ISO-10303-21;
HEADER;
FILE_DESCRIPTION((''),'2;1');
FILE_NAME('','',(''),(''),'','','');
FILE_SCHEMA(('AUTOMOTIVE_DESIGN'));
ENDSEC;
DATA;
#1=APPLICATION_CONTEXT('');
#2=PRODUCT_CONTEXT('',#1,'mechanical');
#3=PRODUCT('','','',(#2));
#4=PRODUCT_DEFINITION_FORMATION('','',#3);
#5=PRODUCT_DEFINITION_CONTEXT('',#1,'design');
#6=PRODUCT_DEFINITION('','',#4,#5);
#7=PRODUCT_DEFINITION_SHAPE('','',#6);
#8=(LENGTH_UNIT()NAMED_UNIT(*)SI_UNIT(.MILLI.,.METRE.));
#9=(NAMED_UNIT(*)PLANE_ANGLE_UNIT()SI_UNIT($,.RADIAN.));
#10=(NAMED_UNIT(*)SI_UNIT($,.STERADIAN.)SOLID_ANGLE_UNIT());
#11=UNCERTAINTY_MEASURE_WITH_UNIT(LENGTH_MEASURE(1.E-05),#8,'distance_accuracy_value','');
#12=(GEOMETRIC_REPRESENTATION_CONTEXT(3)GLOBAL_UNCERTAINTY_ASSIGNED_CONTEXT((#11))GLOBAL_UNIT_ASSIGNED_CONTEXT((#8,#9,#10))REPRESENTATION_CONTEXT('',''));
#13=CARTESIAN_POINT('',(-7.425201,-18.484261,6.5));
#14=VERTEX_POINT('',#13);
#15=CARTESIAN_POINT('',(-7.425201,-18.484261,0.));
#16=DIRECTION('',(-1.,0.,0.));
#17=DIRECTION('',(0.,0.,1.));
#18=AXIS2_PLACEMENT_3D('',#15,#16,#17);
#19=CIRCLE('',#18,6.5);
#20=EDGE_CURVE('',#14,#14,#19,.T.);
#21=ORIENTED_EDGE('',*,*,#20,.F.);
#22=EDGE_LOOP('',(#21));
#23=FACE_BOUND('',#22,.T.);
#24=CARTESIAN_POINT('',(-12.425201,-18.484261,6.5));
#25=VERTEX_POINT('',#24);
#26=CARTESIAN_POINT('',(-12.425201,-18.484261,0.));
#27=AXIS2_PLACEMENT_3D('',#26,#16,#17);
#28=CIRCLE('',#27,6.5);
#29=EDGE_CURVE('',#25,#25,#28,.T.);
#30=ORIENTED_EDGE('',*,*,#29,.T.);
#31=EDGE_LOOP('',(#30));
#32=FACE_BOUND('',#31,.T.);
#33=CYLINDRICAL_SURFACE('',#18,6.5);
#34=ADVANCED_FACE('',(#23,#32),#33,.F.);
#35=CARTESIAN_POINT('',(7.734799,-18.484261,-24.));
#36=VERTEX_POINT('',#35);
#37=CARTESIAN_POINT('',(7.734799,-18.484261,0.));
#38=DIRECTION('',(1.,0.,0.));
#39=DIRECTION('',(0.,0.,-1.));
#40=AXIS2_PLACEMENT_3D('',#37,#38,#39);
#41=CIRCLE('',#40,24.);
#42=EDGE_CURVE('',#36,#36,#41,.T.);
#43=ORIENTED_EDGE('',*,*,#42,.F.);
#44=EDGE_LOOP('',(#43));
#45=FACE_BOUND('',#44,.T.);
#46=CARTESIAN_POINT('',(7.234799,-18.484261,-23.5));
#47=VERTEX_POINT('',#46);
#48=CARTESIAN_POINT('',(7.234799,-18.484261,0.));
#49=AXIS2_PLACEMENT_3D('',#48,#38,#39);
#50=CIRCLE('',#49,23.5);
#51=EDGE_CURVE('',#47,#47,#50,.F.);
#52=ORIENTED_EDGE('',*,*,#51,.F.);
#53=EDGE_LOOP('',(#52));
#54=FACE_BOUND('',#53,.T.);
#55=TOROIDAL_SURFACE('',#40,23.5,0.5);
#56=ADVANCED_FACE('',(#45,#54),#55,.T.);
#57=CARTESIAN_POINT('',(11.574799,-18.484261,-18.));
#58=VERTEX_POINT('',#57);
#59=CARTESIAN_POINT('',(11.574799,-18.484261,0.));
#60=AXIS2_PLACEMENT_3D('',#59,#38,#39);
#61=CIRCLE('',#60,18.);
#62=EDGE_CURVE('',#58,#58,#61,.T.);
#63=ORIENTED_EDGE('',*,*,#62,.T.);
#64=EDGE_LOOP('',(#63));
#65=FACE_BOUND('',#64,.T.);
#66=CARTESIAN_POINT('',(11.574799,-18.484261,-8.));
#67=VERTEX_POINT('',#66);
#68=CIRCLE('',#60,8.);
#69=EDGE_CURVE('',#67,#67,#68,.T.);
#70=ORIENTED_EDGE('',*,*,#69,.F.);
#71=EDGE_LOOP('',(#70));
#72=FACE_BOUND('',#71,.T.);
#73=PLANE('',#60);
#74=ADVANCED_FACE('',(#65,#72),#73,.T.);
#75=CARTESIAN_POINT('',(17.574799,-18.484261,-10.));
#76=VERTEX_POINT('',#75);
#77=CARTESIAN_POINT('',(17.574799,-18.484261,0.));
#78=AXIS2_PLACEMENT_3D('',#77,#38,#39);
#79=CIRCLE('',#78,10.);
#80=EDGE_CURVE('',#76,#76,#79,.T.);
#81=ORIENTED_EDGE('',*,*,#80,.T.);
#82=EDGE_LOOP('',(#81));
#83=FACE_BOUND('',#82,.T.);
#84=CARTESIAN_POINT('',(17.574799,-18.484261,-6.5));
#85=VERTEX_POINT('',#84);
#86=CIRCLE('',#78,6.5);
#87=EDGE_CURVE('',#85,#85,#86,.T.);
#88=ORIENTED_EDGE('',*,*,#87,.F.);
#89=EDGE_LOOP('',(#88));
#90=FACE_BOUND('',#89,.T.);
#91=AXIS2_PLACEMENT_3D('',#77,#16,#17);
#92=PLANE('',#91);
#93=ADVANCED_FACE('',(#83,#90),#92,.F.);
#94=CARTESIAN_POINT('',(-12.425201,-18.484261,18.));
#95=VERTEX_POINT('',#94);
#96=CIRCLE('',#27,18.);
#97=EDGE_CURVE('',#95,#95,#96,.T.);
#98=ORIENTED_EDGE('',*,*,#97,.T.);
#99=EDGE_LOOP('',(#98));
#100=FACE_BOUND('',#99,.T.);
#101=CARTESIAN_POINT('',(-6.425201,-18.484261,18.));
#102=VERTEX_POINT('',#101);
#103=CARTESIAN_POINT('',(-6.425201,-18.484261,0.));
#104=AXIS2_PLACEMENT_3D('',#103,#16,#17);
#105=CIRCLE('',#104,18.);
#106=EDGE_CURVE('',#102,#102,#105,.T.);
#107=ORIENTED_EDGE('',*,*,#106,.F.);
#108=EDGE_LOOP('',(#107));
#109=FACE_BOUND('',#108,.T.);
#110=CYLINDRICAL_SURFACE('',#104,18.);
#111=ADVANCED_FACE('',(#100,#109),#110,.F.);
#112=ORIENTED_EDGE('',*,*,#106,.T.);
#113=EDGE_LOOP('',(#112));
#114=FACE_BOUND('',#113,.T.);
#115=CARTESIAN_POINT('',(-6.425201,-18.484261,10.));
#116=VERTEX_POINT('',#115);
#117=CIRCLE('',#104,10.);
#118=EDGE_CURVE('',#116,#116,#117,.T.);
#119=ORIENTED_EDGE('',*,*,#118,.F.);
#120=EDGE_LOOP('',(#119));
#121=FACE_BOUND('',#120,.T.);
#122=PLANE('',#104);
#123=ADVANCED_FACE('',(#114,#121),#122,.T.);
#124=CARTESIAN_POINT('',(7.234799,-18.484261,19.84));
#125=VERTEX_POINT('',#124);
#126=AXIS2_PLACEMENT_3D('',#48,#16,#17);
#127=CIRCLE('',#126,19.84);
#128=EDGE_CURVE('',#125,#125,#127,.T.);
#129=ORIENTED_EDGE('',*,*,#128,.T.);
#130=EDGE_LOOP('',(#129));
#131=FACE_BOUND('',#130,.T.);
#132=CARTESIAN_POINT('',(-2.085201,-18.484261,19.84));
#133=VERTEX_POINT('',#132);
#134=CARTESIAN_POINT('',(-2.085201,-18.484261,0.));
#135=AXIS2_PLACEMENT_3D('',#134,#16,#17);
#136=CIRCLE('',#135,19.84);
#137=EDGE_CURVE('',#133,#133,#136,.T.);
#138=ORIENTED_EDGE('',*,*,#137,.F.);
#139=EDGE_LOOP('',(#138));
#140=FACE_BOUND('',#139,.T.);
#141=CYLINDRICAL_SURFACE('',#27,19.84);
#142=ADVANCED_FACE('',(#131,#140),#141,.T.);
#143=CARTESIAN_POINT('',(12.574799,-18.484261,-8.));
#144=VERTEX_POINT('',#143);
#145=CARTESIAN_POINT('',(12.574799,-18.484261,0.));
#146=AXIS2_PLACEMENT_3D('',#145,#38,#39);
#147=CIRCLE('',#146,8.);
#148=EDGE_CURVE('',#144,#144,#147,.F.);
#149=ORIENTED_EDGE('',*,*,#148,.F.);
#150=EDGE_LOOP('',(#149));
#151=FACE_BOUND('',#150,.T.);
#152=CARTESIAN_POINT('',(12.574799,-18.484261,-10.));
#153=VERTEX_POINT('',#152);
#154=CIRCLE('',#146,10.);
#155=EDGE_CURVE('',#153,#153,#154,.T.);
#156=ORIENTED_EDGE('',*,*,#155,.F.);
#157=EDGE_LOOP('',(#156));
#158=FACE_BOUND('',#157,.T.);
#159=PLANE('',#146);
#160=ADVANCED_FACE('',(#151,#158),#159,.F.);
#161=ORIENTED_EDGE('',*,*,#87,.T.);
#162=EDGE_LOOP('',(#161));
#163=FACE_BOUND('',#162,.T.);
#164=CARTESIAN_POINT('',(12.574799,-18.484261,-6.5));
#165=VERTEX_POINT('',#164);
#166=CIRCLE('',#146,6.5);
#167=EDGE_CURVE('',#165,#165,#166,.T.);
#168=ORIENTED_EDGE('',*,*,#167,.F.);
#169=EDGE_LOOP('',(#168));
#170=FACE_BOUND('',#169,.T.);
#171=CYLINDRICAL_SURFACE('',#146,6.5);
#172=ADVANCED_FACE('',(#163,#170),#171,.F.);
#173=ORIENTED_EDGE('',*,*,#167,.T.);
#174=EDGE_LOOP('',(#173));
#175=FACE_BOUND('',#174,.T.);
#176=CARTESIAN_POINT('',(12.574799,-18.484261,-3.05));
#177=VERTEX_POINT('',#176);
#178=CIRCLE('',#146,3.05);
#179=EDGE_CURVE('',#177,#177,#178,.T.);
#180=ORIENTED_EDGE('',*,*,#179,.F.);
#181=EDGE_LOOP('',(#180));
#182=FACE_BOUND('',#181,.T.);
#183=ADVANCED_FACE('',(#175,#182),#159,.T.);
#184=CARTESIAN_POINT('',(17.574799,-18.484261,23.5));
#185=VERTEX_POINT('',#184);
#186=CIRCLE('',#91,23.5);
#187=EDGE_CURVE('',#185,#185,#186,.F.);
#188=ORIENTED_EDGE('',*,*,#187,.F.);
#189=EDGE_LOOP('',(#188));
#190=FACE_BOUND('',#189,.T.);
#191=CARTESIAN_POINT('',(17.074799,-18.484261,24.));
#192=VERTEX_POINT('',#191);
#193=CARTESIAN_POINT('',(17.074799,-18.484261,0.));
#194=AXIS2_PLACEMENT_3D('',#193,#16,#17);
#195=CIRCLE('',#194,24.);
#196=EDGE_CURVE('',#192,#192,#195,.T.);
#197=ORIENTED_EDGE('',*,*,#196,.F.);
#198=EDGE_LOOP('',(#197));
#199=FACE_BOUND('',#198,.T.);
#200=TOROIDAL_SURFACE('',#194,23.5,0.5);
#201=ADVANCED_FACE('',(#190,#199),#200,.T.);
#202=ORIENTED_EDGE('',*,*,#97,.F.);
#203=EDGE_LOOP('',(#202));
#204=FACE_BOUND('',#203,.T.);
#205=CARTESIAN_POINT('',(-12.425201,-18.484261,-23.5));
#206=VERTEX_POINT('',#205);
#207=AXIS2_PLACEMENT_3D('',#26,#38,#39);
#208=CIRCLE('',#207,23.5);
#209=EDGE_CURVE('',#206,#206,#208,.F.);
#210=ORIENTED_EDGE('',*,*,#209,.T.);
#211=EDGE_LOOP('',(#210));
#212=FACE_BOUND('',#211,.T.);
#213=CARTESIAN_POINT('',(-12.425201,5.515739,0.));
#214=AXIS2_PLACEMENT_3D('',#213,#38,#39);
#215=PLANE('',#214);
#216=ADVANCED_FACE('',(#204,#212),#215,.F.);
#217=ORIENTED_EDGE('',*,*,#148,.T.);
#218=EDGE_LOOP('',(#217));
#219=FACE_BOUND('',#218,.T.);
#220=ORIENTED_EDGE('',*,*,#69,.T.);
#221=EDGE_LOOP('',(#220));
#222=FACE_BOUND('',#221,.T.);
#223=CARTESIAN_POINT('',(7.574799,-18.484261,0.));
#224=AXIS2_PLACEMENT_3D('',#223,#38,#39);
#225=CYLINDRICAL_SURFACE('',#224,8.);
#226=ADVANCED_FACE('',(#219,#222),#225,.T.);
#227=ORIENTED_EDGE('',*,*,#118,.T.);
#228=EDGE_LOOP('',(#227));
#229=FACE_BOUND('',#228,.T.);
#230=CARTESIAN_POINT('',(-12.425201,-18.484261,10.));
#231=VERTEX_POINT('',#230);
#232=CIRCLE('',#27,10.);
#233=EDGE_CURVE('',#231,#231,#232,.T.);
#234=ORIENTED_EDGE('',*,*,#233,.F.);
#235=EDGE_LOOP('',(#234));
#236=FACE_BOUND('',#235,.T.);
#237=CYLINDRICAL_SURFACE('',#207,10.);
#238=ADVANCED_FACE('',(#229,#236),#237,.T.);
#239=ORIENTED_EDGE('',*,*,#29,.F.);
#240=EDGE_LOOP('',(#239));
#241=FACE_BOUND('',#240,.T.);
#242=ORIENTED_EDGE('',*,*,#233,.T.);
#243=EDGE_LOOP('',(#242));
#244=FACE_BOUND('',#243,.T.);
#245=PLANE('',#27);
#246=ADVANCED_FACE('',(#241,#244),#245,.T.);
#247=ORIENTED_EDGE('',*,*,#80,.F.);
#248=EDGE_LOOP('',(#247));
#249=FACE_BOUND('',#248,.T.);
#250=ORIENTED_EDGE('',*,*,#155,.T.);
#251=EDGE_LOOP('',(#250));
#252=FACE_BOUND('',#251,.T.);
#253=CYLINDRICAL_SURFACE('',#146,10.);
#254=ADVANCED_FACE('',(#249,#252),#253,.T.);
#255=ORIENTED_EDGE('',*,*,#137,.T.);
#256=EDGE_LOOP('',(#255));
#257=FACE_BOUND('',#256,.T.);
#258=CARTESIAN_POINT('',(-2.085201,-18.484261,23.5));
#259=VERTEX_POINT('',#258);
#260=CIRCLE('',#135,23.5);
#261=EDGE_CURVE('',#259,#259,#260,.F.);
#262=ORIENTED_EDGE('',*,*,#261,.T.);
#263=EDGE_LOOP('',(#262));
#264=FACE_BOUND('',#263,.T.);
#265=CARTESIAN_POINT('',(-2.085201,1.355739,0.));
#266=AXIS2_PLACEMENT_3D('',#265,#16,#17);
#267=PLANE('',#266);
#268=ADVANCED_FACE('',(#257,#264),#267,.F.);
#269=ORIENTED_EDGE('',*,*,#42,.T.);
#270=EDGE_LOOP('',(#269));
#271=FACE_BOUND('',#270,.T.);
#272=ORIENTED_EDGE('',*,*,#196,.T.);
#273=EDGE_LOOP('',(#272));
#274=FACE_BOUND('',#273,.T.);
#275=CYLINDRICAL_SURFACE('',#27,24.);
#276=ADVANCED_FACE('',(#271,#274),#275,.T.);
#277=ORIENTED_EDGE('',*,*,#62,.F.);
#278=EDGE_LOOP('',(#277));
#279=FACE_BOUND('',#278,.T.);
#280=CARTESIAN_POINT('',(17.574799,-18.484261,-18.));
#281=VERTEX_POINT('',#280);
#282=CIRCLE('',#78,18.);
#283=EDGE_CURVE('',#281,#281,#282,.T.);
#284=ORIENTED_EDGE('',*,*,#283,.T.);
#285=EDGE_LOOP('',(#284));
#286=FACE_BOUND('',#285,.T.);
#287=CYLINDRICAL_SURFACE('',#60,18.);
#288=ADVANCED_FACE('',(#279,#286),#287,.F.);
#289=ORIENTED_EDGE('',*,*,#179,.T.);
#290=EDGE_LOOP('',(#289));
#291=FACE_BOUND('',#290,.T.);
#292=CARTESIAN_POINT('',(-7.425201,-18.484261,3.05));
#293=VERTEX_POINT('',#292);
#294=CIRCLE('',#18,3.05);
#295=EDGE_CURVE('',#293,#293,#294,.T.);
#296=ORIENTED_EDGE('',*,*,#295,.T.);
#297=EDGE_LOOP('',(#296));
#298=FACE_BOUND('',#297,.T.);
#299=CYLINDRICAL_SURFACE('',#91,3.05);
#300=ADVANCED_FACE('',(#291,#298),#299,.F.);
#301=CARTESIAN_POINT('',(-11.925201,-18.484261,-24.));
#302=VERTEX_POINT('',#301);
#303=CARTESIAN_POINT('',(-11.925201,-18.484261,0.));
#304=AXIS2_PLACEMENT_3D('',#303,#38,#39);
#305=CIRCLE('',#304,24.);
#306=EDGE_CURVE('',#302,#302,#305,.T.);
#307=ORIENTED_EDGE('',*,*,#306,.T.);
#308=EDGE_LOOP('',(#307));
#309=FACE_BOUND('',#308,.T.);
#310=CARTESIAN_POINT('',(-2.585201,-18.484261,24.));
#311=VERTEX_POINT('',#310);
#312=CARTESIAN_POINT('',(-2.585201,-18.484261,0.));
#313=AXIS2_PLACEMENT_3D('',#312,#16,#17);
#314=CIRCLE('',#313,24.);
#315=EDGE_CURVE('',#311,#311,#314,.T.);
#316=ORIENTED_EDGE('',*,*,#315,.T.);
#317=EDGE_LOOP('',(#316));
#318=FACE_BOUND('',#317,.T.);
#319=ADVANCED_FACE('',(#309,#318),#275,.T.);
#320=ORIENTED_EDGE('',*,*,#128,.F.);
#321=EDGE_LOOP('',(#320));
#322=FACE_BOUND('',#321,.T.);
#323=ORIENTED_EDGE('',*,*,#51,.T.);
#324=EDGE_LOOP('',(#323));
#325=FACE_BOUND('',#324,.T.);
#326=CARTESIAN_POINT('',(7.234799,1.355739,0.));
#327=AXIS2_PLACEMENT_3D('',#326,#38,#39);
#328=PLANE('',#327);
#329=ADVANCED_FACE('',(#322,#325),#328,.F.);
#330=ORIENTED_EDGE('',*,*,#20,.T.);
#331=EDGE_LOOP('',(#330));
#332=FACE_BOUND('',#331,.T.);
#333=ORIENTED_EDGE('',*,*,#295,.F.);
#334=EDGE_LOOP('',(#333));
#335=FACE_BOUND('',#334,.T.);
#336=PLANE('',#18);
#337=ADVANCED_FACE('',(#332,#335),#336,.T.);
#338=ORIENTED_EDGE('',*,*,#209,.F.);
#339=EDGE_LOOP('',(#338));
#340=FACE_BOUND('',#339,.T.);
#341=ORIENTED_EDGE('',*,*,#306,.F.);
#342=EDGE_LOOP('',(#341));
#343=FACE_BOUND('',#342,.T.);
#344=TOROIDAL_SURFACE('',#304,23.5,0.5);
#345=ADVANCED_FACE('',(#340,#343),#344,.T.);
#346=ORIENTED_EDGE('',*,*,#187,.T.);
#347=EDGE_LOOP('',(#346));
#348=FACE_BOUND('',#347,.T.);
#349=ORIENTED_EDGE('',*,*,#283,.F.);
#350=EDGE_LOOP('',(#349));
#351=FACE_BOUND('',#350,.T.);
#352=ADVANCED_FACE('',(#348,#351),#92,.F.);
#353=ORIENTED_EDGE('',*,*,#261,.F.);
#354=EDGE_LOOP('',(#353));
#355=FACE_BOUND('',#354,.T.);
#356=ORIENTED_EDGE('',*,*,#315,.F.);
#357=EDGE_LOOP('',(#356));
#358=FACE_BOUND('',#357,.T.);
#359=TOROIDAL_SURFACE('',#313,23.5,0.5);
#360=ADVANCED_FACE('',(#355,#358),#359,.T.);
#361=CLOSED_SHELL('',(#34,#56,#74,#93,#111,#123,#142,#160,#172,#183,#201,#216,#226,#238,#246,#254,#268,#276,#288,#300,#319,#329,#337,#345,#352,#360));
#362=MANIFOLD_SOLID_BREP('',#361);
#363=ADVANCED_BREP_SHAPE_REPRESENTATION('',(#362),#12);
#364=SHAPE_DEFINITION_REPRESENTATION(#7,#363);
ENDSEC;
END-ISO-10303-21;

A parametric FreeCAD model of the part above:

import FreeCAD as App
import Part
import Sketcher


def edges_at(feature, points):
    """Names of the edges that pass closest to the given points."""
    edges = feature.Shape.Edges
    near = lambda p: min(range(len(edges)), key=lambda i: edges[i].distToShape(Part.Vertex(*p))[0])
    return sorted({f"Edge{near(p) + 1}" for p in points})


def add_polygon(sketch, points):
    """Adds a closed chain of lines whose ends are joined by coincident constraints."""
    first, n = sketch.GeometryCount, len(points)
    for a, b in zip(points, points[1:] + points[:1]):
        sketch.addGeometry(Part.LineSegment(App.Vector(*a, 0), App.Vector(*b, 0)), False)
    for i in range(n):
        sketch.addConstraint(Sketcher.Constraint("Coincident", first + i, 2, first + (i + 1) % n, 1))

doc = App.newDocument("Part")
body = doc.addObject("PartDesign::Body", "Body")

# Sketch on XY plane
sketch1 = body.newObject("Sketcher::SketchObject", "Sketch")
sketch1.AttachmentSupport = (doc.getObject("XY_Plane"), [""])
sketch1.MapMode = "FlatFace"
add_polygon(sketch1, [(7.2, 1.4), (-2.1, 1.4), (-2.1, 5.5), (-12.4, 5.5), (-12.4, -18.5), (17.6, -18.5), (17.6, 5.5), (7.2, 5.5)])  # lines 0-7
sketch1.addGeometry(Part.LineSegment(App.Vector(-12.4, -18.5, 0), App.Vector(17.6, -18.5, 0)), True)  # axis
sketch1.addConstraint([
    Sketcher.Constraint("Horizontal", 0),
    Sketcher.Constraint("Vertical", 1),
    Sketcher.Constraint("Horizontal", 2),
    Sketcher.Constraint("Vertical", 3),
    Sketcher.Constraint("Horizontal", 4),
    Sketcher.Constraint("Vertical", 5),
    Sketcher.Constraint("Horizontal", 6),
    Sketcher.Constraint("Vertical", 7),
    Sketcher.Constraint("Horizontal", 8),
    Sketcher.Constraint("Coincident", 8, 1, 3, 2),
    Sketcher.Constraint("Horizontal", 2, 2, 5, 2),
    Sketcher.Constraint("Vertical", 5, 2, 8, 2),
    Sketcher.Constraint("Equal", 2, 6),
    Sketcher.Constraint("DistanceX", 4, 1, 4, 2, 30.0),
    Sketcher.Constraint("DistanceY", 3, 2, 3, 1, 24.0),
    Sketcher.Constraint("DistanceX", 0, 2, 0, 1, 9.32),
    Sketcher.Constraint("DistanceY", 1, 1, 1, 2, 4.16),
    Sketcher.Constraint("DistanceX", 0, 2, -1, 1, 2.085201),
    Sketcher.Constraint("DistanceY", -1, 1, 0, 2, 1.355739),
])
revolution = body.newObject("PartDesign::Revolution", "Revolution")
revolution.Profile = sketch1
revolution.ReferenceAxis = (sketch1, ["Axis0"])
revolution.Angle = 360

# Sketch on YZ plane
sketch2 = body.newObject("Sketcher::SketchObject", "Sketch001")
sketch2.AttachmentSupport = (doc.getObject("YZ_Plane"), [""])
sketch2.MapMode = "FlatFace"
sketch2.AttachmentOffset = App.Placement(App.Vector(0, 0, 17.574799), App.Rotation())
sketch2.addGeometry(Part.Circle(App.Vector(-18.5, 0, 0), App.Vector(0, 0, 1), 2), False)
sketch2.addConstraint([
    Sketcher.Constraint("PointOnObject", 0, 3, -1),
    Sketcher.Constraint("Diameter", 0, 4.0),
    Sketcher.Constraint("DistanceX", 0, 3, -1, 1, 18.484261),
])
pocket1 = body.newObject("PartDesign::Pocket", "Pocket")
pocket1.Profile = sketch2
pocket1.Type = "ThroughAll"
doc.recompute()

fillet = body.newObject("PartDesign::Fillet", "Fillet")
fillet.Base = (pocket1, edges_at(pocket1, [
    (-2.085, -18.484, -24),
    (7.235, -18.484, -24),
    (17.575, -18.484, -24),
    (-12.425, -18.484, -24),
]))
fillet.Radius = 0.5

# Sketch on YZ plane
sketch3 = body.newObject("Sketcher::SketchObject", "Sketch002")
sketch3.AttachmentSupport = (doc.getObject("YZ_Plane"), [""])
sketch3.MapMode = "FlatFace"
sketch3.AttachmentOffset = App.Placement(App.Vector(0, 0, 17.574799), App.Rotation())
sketch3.addGeometry([
    Part.Circle(App.Vector(-18, 0, 0), App.Vector(0, 0, 1), 18),
    Part.Circle(App.Vector(-18, 0, 0), App.Vector(0, 0, 1), 6),
], False)
sketch3.addConstraint([
    Sketcher.Constraint("Coincident", 1, 3, 0, 3),
    Sketcher.Constraint("PointOnObject", 0, 3, -1),
    Sketcher.Constraint("Diameter", 0, 36.0),
    Sketcher.Constraint("Diameter", 1, 12.0),
    Sketcher.Constraint("DistanceX", 0, 3, -1, 1, 18.484261),
])
pocket2 = body.newObject("PartDesign::Pocket", "Pocket001")
pocket2.Profile = sketch3
pocket2.Length = 6

# Sketch on YZ plane
sketch4 = body.newObject("Sketcher::SketchObject", "Sketch003")
sketch4.AttachmentSupport = (doc.getObject("YZ_Plane"), [""])
sketch4.MapMode = "FlatFace"
sketch4.AttachmentOffset = App.Placement(App.Vector(0, 0, -6.425201), App.Rotation())
sketch4.addGeometry(Part.Circle(App.Vector(-18, 0, 0), App.Vector(0, 0, 1), 18), False)
sketch4.addConstraint([
    Sketcher.Constraint("PointOnObject", 0, 3, -1),
    Sketcher.Constraint("Diameter", 0, 36.0),
    Sketcher.Constraint("DistanceX", 0, 3, -1, 1, 18.484261),
])
pocket3 = body.newObject("PartDesign::Pocket", "Pocket002")
pocket3.Profile = sketch4
pocket3.Length = 6

# Sketch on YZ plane
sketch5 = body.newObject("Sketcher::SketchObject", "Sketch004")
sketch5.AttachmentSupport = (doc.getObject("YZ_Plane"), [""])
sketch5.MapMode = "FlatFace"
sketch5.AttachmentOffset = App.Placement(App.Vector(0, 0, -6.425201), App.Rotation())
sketch5.addGeometry(Part.Circle(App.Vector(-18, 0, 0), App.Vector(0, 0, 1), 10), False)
sketch5.addConstraint([
    Sketcher.Constraint("PointOnObject", 0, 3, -1),
    Sketcher.Constraint("Diameter", 0, 20.0),
    Sketcher.Constraint("DistanceX", 0, 3, -1, 1, 18.484261),
])
pad1 = body.newObject("PartDesign::Pad", "Pad")
pad1.Profile = sketch5
pad1.Length = 6
pad1.Reversed = True

# Sketch on YZ plane
sketch6 = body.newObject("Sketcher::SketchObject", "Sketch005")
sketch6.AttachmentSupport = (doc.getObject("YZ_Plane"), [""])
sketch6.MapMode = "FlatFace"
sketch6.AttachmentOffset = App.Placement(App.Vector(0, 0, 17.574799), App.Rotation())
sketch6.addGeometry(Part.Circle(App.Vector(-18, 0, 0), App.Vector(0, 0, 1), 8), False)
sketch6.addConstraint([
    Sketcher.Constraint("PointOnObject", 0, 3, -1),
    Sketcher.Constraint("Diameter", 0, 16.0),
    Sketcher.Constraint("DistanceX", 0, 3, -1, 1, 18.484261),
])
pad2 = body.newObject("PartDesign::Pad", "Pad001")
pad2.Profile = sketch6
pad2.Length = 10
pad2.Reversed = True

# Sketch on YZ plane
sketch7 = body.newObject("Sketcher::SketchObject", "Sketch006")
sketch7.AttachmentSupport = (doc.getObject("YZ_Plane"), [""])
sketch7.MapMode = "FlatFace"
sketch7.AttachmentOffset = App.Placement(App.Vector(0, 0, -12.425201), App.Rotation())
sketch7.addGeometry(Part.Circle(App.Vector(-18, 0, 0), App.Vector(0, 0, 1), 6), False)
sketch7.addConstraint([
    Sketcher.Constraint("PointOnObject", 0, 3, -1),
    Sketcher.Constraint("Diameter", 0, 13.0),
    Sketcher.Constraint("DistanceX", 0, 3, -1, 1, 18.484261),
])
pocket4 = body.newObject("PartDesign::Pocket", "Pocket003")
pocket4.Profile = sketch7
pocket4.Length = 5
pocket4.Reversed = True

# Sketch on YZ plane
sketch8 = body.newObject("Sketcher::SketchObject", "Sketch007")
sketch8.AttachmentSupport = (doc.getObject("YZ_Plane"), [""])
sketch8.MapMode = "FlatFace"
sketch8.AttachmentOffset = App.Placement(App.Vector(0, 0, 17.574799), App.Rotation())
sketch8.addGeometry(Part.Circle(App.Vector(-18, 0, 0), App.Vector(0, 0, 1), 10), False)
sketch8.addConstraint([
    Sketcher.Constraint("PointOnObject", 0, 3, -1),
    Sketcher.Constraint("Diameter", 0, 20.0),
    Sketcher.Constraint("DistanceX", 0, 3, -1, 1, 18.484261),
])
pad3 = body.newObject("PartDesign::Pad", "Pad002")
pad3.Profile = sketch8
pad3.Length = 5
pad3.Reversed = True

# Sketch on YZ plane
sketch9 = body.newObject("Sketcher::SketchObject", "Sketch008")
sketch9.AttachmentSupport = (doc.getObject("YZ_Plane"), [""])
sketch9.MapMode = "FlatFace"
sketch9.AttachmentOffset = App.Placement(App.Vector(0, 0, 12.574799), App.Rotation())
sketch9.addGeometry(Part.Circle(App.Vector(-18, 0, 0), App.Vector(0, 0, 1), 6), False)
sketch9.addConstraint([
    Sketcher.Constraint("PointOnObject", 0, 3, -1),
    Sketcher.Constraint("Diameter", 0, 13.0),
    Sketcher.Constraint("DistanceX", 0, 3, -1, 1, 18.484261),
])
pocket5 = body.newObject("PartDesign::Pocket", "Pocket004")
pocket5.Profile = sketch9
pocket5.Length = 5
pocket5.Reversed = True

# Sketch on YZ plane
sketch10 = body.newObject("Sketcher::SketchObject", "Sketch009")
sketch10.AttachmentSupport = (doc.getObject("YZ_Plane"), [""])
sketch10.MapMode = "FlatFace"
sketch10.AttachmentOffset = App.Placement(App.Vector(0, 0, -12.425201), App.Rotation())
sketch10.addGeometry(Part.Circle(App.Vector(-18.5, 0, 0), App.Vector(0, 0, 1), 3), False)
sketch10.addConstraint([
    Sketcher.Constraint("PointOnObject", 0, 3, -1),
    Sketcher.Constraint("Diameter", 0, 6.1),
    Sketcher.Constraint("DistanceX", 0, 3, -1, 1, 18.484261),
])
pocket6 = body.newObject("PartDesign::Pocket", "Pocket005")
pocket6.Profile = sketch10
pocket6.Type = "ThroughAll"
pocket6.Reversed = True

doc.recompute()
